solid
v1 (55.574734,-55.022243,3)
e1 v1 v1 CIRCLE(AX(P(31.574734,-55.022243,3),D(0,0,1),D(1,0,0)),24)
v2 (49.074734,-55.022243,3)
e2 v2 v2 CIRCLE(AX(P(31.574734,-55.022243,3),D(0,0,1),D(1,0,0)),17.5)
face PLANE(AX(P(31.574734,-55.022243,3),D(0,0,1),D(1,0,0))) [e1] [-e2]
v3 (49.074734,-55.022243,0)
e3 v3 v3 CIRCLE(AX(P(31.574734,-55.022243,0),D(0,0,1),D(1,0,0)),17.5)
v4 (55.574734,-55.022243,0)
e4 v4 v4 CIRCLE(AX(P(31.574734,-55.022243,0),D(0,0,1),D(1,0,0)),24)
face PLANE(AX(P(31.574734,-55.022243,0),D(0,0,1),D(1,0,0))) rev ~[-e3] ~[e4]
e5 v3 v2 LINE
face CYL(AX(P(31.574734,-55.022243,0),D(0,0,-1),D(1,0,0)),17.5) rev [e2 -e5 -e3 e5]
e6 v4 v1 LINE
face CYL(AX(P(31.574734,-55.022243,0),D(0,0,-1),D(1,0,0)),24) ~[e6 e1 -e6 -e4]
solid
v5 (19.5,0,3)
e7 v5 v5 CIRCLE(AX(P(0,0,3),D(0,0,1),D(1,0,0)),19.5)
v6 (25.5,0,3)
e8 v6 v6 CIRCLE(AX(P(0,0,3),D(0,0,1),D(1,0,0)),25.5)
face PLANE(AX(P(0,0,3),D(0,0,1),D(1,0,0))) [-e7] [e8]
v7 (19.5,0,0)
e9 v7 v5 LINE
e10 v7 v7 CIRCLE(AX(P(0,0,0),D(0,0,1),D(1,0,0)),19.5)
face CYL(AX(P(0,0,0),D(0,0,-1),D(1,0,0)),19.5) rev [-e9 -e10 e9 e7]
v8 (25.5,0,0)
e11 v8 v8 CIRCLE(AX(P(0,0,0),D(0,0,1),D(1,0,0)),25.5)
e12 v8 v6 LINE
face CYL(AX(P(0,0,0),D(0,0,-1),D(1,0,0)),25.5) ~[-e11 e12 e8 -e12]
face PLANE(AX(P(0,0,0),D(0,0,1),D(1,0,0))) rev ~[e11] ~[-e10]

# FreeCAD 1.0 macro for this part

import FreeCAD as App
import Part
import Sketcher
from FreeCAD import Vector
Q = App.Units.Quantity

doc = App.newDocument("Part")
body = doc.addObject("PartDesign::Body", "Body")
body.AllowCompound = True

sketch1 = body.newObject("Sketcher::SketchObject", "Sketch")
sketch1.AttachmentSupport = (doc.getObject("XY_Plane"), [""])
sketch1.MapMode = "FlatFace"
sketch1.addGeometry([
    Part.Circle(Vector(0, 0, 0), Vector(0, 0, 1), 26),
    Part.Circle(Vector(0, 0, 0), Vector(0, 0, 1), 20),
    Part.Circle(Vector(32, -55, 0), Vector(0, 0, 1), 24),
    Part.Circle(Vector(32, -55, 0), Vector(0, 0, 1), 18),
], False)
sketch1.addConstraint([
    Sketcher.Constraint("Coincident", 0, 3, -1, 1),
    Sketcher.Constraint("Coincident", 1, 3, -1, 1),
    Sketcher.Constraint("Coincident", 3, 3, 2, 3),
    Sketcher.Constraint("Diameter", 0, Q("51 mm")),
    Sketcher.Constraint("Diameter", 1, Q("39 mm")),
    Sketcher.Constraint("Diameter", 2, Q("48 mm")),
    Sketcher.Constraint("Diameter", 3, Q("35 mm")),
    Sketcher.Constraint("DistanceX", -1, 1, 2, 3, Q("31.574734 mm")),
    Sketcher.Constraint("DistanceY", 2, 3, -1, 1, Q("55.022243 mm")),
])
pad1 = body.newObject("PartDesign::Pad", "Pad")
pad1.Profile = sketch1
pad1.Length = 3

doc.recompute()
